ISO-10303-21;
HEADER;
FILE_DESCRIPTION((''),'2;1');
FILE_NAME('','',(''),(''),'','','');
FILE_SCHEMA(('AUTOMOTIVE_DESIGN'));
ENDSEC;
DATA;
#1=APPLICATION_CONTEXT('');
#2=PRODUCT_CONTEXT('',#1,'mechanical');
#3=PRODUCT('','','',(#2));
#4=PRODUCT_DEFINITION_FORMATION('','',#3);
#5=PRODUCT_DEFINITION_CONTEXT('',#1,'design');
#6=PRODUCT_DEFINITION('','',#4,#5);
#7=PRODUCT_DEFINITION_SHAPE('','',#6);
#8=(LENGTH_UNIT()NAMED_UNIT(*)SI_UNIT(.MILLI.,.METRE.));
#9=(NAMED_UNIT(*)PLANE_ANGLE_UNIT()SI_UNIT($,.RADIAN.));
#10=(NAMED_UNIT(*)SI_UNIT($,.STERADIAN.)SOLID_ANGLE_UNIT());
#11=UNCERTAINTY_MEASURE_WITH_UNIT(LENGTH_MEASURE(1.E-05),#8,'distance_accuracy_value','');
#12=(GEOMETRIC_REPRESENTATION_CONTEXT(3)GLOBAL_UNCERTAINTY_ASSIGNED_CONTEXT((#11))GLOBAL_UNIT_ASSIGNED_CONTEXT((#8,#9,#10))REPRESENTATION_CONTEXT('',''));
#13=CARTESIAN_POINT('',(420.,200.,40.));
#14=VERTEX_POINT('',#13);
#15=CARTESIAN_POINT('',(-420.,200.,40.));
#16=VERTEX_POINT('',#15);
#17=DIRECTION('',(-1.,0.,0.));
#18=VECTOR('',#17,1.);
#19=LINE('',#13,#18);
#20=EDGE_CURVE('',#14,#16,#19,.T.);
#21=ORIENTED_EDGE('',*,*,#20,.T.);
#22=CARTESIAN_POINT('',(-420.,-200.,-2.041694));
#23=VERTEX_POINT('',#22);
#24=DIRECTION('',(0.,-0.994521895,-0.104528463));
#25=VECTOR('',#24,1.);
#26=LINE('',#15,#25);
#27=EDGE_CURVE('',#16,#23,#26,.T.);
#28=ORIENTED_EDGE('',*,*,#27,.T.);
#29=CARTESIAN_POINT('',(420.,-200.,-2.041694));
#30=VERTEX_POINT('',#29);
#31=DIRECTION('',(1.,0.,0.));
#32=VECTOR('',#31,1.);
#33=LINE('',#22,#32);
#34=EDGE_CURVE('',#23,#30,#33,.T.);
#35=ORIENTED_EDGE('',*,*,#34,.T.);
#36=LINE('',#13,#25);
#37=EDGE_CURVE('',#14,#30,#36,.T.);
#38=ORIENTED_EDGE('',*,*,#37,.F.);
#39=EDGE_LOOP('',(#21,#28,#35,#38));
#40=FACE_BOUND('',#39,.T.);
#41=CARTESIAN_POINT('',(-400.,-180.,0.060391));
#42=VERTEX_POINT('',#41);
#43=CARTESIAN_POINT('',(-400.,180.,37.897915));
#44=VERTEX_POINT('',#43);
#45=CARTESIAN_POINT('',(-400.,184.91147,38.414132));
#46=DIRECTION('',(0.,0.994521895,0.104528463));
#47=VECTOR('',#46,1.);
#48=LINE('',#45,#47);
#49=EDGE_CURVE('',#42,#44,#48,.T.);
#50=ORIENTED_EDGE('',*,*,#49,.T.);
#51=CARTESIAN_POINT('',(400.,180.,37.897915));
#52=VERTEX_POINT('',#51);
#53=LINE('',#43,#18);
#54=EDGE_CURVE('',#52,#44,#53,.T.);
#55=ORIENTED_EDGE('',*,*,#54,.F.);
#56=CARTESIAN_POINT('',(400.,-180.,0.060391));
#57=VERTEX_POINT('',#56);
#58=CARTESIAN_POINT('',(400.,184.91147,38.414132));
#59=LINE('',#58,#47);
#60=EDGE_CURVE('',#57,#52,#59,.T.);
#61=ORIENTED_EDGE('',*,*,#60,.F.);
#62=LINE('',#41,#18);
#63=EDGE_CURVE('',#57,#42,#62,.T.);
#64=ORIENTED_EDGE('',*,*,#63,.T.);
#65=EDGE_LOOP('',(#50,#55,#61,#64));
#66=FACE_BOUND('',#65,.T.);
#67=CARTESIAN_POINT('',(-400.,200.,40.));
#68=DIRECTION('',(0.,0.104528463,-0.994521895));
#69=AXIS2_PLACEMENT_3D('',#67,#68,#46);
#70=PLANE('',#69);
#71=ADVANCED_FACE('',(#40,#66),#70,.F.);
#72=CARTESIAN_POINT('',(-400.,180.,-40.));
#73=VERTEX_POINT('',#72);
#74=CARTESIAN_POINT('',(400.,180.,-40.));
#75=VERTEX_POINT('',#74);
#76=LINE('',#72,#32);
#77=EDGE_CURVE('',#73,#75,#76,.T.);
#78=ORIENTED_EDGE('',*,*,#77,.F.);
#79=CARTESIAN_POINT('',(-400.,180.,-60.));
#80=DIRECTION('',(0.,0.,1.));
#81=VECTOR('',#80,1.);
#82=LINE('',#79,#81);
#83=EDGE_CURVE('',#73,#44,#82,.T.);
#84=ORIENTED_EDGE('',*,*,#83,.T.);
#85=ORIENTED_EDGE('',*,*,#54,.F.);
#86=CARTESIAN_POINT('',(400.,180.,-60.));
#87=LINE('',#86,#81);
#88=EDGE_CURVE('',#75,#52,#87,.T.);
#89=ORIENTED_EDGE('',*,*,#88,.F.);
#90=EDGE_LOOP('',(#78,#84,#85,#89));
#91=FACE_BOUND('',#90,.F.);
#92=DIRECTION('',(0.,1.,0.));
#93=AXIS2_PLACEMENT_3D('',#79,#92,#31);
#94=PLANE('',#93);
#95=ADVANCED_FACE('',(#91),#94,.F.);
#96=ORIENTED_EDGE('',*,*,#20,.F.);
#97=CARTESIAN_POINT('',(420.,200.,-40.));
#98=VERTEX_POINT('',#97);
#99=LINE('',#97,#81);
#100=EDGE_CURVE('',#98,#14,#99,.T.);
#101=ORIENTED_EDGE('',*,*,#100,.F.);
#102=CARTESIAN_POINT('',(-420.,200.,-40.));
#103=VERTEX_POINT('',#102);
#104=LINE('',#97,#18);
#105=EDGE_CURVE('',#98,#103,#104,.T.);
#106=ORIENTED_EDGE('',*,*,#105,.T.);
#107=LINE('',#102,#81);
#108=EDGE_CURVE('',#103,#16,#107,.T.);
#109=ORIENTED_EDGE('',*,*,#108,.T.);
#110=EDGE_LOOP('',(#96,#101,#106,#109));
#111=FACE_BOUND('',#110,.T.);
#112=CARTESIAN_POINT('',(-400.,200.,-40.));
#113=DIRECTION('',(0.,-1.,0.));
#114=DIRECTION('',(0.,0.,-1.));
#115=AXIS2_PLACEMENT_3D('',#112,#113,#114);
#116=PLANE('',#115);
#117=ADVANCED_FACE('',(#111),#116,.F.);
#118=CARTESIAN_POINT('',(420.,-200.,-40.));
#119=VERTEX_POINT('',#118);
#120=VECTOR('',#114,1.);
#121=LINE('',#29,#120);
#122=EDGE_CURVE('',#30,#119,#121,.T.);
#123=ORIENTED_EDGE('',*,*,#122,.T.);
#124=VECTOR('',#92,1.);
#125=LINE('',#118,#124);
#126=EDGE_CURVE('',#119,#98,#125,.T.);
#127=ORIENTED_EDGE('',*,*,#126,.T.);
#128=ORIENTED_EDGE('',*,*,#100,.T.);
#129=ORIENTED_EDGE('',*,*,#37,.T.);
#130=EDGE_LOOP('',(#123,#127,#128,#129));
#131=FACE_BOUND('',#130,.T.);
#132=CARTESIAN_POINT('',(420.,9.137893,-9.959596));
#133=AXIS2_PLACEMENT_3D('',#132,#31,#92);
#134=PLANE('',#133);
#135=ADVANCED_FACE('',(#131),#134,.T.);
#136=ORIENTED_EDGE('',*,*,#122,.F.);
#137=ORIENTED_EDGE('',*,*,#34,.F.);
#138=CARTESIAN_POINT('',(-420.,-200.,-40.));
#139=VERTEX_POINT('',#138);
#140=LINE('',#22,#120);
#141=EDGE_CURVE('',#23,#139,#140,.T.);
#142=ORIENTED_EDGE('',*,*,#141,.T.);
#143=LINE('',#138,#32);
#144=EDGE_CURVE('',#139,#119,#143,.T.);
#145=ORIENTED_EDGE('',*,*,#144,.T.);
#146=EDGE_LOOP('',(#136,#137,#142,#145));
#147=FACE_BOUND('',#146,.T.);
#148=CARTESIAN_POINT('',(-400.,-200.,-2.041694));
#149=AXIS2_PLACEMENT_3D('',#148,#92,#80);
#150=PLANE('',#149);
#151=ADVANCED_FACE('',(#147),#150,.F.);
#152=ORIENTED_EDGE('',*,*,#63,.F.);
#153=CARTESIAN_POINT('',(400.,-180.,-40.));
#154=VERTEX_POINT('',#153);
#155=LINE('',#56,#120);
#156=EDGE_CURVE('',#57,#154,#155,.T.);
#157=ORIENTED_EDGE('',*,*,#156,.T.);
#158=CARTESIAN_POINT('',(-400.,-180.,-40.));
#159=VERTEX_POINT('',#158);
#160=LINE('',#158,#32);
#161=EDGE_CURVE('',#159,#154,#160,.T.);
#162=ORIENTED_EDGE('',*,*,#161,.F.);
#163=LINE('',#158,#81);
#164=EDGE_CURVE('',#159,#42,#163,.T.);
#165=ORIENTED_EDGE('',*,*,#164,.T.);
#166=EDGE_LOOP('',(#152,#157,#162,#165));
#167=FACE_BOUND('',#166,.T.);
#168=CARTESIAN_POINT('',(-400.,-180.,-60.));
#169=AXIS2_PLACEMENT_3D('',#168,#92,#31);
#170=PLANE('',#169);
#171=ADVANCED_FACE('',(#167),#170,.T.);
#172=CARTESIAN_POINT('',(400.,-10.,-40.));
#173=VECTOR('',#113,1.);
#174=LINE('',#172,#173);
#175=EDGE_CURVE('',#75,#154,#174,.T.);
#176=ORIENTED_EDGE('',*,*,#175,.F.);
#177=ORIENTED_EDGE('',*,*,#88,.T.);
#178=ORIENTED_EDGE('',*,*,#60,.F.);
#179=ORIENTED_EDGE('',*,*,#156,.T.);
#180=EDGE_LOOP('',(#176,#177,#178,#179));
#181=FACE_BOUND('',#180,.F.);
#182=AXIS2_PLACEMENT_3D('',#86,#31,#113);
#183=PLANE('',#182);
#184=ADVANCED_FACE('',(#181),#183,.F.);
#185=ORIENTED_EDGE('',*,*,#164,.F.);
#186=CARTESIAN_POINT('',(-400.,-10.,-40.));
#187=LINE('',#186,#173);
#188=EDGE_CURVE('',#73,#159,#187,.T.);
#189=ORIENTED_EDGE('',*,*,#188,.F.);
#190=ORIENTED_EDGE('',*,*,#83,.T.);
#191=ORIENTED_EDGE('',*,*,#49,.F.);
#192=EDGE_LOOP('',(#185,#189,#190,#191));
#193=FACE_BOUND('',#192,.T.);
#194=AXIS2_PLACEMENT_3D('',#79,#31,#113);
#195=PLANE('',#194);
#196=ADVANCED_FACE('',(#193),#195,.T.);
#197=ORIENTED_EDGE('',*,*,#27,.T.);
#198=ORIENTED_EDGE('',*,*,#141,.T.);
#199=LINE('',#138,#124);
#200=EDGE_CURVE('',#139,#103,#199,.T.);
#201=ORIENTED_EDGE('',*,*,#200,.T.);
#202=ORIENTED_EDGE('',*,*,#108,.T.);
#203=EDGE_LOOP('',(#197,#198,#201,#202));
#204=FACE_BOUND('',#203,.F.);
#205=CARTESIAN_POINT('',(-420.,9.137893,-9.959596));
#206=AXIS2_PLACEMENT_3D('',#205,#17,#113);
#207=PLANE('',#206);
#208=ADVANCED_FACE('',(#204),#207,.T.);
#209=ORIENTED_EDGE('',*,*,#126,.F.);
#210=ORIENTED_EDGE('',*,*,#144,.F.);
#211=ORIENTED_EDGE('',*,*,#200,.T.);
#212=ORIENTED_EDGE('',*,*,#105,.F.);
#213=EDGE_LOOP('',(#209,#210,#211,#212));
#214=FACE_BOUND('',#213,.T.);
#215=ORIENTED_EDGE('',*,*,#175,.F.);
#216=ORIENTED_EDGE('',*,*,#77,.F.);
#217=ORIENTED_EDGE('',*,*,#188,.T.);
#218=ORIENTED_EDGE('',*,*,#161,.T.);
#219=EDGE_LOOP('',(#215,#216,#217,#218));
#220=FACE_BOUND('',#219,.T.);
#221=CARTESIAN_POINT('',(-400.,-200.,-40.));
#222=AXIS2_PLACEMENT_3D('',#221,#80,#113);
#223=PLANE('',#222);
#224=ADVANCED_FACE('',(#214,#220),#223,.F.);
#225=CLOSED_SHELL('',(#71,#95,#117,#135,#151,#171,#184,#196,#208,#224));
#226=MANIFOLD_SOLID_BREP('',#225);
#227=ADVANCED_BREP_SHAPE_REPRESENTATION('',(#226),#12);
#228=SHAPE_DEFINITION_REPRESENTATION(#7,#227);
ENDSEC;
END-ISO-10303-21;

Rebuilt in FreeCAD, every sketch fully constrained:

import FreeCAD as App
import Part
import Sketcher

V = App.Vector
Q = App.Units.Quantity

doc = App.newDocument("Part")
body = doc.addObject("PartDesign::Body", "Body")

# Sketch on XY plane
sketch1 = doc.addObject("Sketcher::SketchObject", "Sketch")
body.addObject(sketch1)
sketch1.AttachmentSupport = (doc.XY_Plane, [""])
sketch1.MapMode = "FlatFace"
sketch1.addGeometry(Part.LineSegment(V(-400, 200, 0), V(-400, -200, 0)), False)
sketch1.addGeometry(Part.LineSegment(V(-400, -200, 0), V(400, -200, 0)), False)
sketch1.addGeometry(Part.LineSegment(V(400, -200, 0), V(400, 200, 0)), False)
sketch1.addGeometry(Part.LineSegment(V(400, 200, 0), V(-400, 200, 0)), False)
sketch1.addConstraint(Sketcher.Constraint("Coincident", 0, 2, 1, 1))
sketch1.addConstraint(Sketcher.Constraint("Coincident", 1, 2, 2, 1))
sketch1.addConstraint(Sketcher.Constraint("Coincident", 2, 2, 3, 1))
sketch1.addConstraint(Sketcher.Constraint("Coincident", 3, 2, 0, 1))
sketch1.addConstraint(Sketcher.Constraint("Vertical", 0))
sketch1.addConstraint(Sketcher.Constraint("Horizontal", 1))
sketch1.addConstraint(Sketcher.Constraint("Vertical", 2))
sketch1.addConstraint(Sketcher.Constraint("Horizontal", 3))
sketch1.addConstraint(Sketcher.Constraint("Symmetric", 0, 2, 2, 2, -1, 1))
sketch1.addConstraint(Sketcher.Constraint("DistanceX", 1, 1, 1, 2, Q("800 mm")))
sketch1.addConstraint(Sketcher.Constraint("DistanceY", 0, 2, 0, 1, Q("400 mm")))
pad1 = doc.addObject("PartDesign::Pad", "Pad")
body.addObject(pad1)
pad1.Profile = sketch1
pad1.Length = 80
pad1.Midplane = True

# Sketch on YZ plane
sketch2 = doc.addObject("Sketcher::SketchObject", "Sketch001")
body.addObject(sketch2)
sketch2.AttachmentSupport = (doc.YZ_Plane, [""])
sketch2.MapMode = "FlatFace"
sketch2.AttachmentOffset = App.Placement(V(0, 0, 400), App.Rotation())
sketch2.addGeometry(Part.LineSegment(V(-180, -20, 0), V(-180, -20.049775, 0)), False)
sketch2.addGeometry(Part.LineSegment(V(-180, -20.049775, 0), V(-179.526423, -20, 0)), False)
sketch2.addGeometry(Part.LineSegment(V(-179.526423, -20, 0), V(-180, -20, 0)), False)
sketch2.addGeometry(Part.LineSegment(V(-200, -2.041694, 0), V(200, 40, 0)), False)
sketch2.addGeometry(Part.LineSegment(V(200, 40, 0), V(-200, 40, 0)), False)
sketch2.addGeometry(Part.LineSegment(V(-200, 40, 0), V(-200, -2.041694, 0)), False)
sketch2.addConstraint(Sketcher.Constraint("Coincident", 0, 2, 1, 1))
sketch2.addConstraint(Sketcher.Constraint("Coincident", 1, 2, 2, 1))
sketch2.addConstraint(Sketcher.Constraint("Coincident", 2, 2, 0, 1))
sketch2.addConstraint(Sketcher.Constraint("Coincident", 3, 2, 4, 1))
sketch2.addConstraint(Sketcher.Constraint("Coincident", 4, 2, 5, 1))
sketch2.addConstraint(Sketcher.Constraint("Coincident", 5, 2, 3, 1))
sketch2.addConstraint(Sketcher.Constraint("Vertical", 0))
sketch2.addConstraint(Sketcher.Constraint("Horizontal", 2))
sketch2.addConstraint(Sketcher.Constraint("Horizontal", 4))
sketch2.addConstraint(Sketcher.Constraint("Vertical", 5))
sketch2.addConstraint(Sketcher.Constraint("Parallel", 1, 3))
sketch2.addConstraint(Sketcher.Constraint("DistanceX", 4, 2, 4, 1, Q("400 mm")))
sketch2.addConstraint(Sketcher.Constraint("Angle", 3, Q("6 deg")))
sketch2.addConstraint(Sketcher.Constraint("DistanceX", 0, 2, -1, 1, Q("180 mm")))
sketch2.addConstraint(Sketcher.Constraint("DistanceY", 1, 2, -1, 1, Q("20 mm")))
sketch2.addConstraint(Sketcher.Constraint("DistanceX", -1, 1, 3, 2, Q("200 mm")))
sketch2.addConstraint(Sketcher.Constraint("DistanceY", -1, 1, 3, 2, Q("40 mm")))
sketch2.addConstraint(Sketcher.Constraint("DistanceX", 2, 2, 2, 1, Q("0.473577 mm")))
pocket1 = doc.addObject("PartDesign::Pocket", "Pocket")
body.addObject(pocket1)
pocket1.Profile = sketch2
pocket1.Type = "ThroughAll"

# Sketch on YZ plane
sketch3 = doc.addObject("Sketcher::SketchObject", "Sketch002")
body.addObject(sketch3)
sketch3.AttachmentSupport = (doc.YZ_Plane, [""])
sketch3.MapMode = "FlatFace"
sketch3.AttachmentOffset = App.Placement(V(0, 0, 400), App.Rotation())
sketch3.addGeometry(Part.LineSegment(V(200, 40, 0), V(-200, -2, 0)), False)
sketch3.addGeometry(Part.LineSegment(V(-200, -2, 0), V(-200, -40, 0)), False)
sketch3.addGeometry(Part.LineSegment(V(-200, -40, 0), V(200, -40, 0)), False)
sketch3.addGeometry(Part.LineSegment(V(200, -40, 0), V(200, 40, 0)), False)
sketch3.addConstraint(Sketcher.Constraint("Coincident", 0, 2, 1, 1))
sketch3.addConstraint(Sketcher.Constraint("Coincident", 1, 2, 2, 1))
sketch3.addConstraint(Sketcher.Constraint("Coincident", 2, 2, 3, 1))
sketch3.addConstraint(Sketcher.Constraint("Coincident", 3, 2, 0, 1))
sketch3.addConstraint(Sketcher.Constraint("Vertical", 1))
sketch3.addConstraint(Sketcher.Constraint("Horizontal", 2))
sketch3.addConstraint(Sketcher.Constraint("Vertical", 3))
sketch3.addConstraint(Sketcher.Constraint("Symmetric", 1, 2, 3, 2, -1, 1))
sketch3.addConstraint(Sketcher.Constraint("DistanceX", 2, 1, 2, 2, Q("400 mm")))
sketch3.addConstraint(Sketcher.Constraint("DistanceY", 3, 1, 3, 2, Q("80 mm")))
sketch3.addConstraint(Sketcher.Constraint("Angle", 0, Q("-174 deg")))
pad2 = doc.addObject("PartDesign::Pad", "Pad001")
body.addObject(pad2)
pad2.Profile = sketch3
pad2.Length = 20
body2 = doc.addObject("PartDesign::Body", "Body001")
doc.recompute()

body2.BaseFeature = body
doc.recompute()

mirroring = doc.addObject("Part::Mirroring", "Mirroring")
mirroring.Source = body
mirroring.Base = V(0, 0, 0)
mirroring.Normal = V(1, 0, 0)
body3 = doc.addObject("PartDesign::Body", "Body002")
body3.BaseFeature = mirroring
boolean = doc.addObject("PartDesign::Boolean", "Boolean")
body2.addObject(boolean)
boolean.Type = "Fuse"
boolean.addObjects([body3])
doc.recompute()

# Sketch on XY plane
sketch4 = doc.addObject("Sketcher::SketchObject", "Sketch003")
body2.addObject(sketch4)
sketch4.AttachmentSupport = (doc.getObject("XY_Plane001"), [""])
sketch4.MapMode = "FlatFace"
sketch4.AttachmentOffset = App.Placement(V(0, 0, -60), App.Rotation())
sketch4.addGeometry(Part.LineSegment(V(-400, -180, 0), V(-400, 180, 0)), False)
sketch4.addGeometry(Part.LineSegment(V(-400, 180, 0), V(400, 180, 0)), False)
sketch4.addGeometry(Part.LineSegment(V(400, 180, 0), V(400, -180, 0)), False)
sketch4.addGeometry(Part.LineSegment(V(400, -180, 0), V(-400, -180, 0)), False)
sketch4.addConstraint(Sketcher.Constraint("Coincident", 0, 2, 1, 1))
sketch4.addConstraint(Sketcher.Constraint("Coincident", 1, 2, 2, 1))
sketch4.addConstraint(Sketcher.Constraint("Coincident", 2, 2, 3, 1))
sketch4.addConstraint(Sketcher.Constraint("Coincident", 3, 2, 0, 1))
sketch4.addConstraint(Sketcher.Constraint("Vertical", 0))
sketch4.addConstraint(Sketcher.Constraint("Horizontal", 1))
sketch4.addConstraint(Sketcher.Constraint("Vertical", 2))
sketch4.addConstraint(Sketcher.Constraint("Horizontal", 3))
sketch4.addConstraint(Sketcher.Constraint("Symmetric", 0, 2, 2, 2, -1, 1))
sketch4.addConstraint(Sketcher.Constraint("DistanceX", 1, 1, 1, 2, Q("800 mm")))
sketch4.addConstraint(Sketcher.Constraint("DistanceY", 0, 1, 0, 2, Q("360 mm")))
pocket2 = doc.addObject("PartDesign::Pocket", "Pocket001")
body2.addObject(pocket2)
pocket2.Profile = sketch4
pocket2.Type = "ThroughAll"
pocket2.Reversed = True
mirroring.Visibility = False

doc.recompute()
